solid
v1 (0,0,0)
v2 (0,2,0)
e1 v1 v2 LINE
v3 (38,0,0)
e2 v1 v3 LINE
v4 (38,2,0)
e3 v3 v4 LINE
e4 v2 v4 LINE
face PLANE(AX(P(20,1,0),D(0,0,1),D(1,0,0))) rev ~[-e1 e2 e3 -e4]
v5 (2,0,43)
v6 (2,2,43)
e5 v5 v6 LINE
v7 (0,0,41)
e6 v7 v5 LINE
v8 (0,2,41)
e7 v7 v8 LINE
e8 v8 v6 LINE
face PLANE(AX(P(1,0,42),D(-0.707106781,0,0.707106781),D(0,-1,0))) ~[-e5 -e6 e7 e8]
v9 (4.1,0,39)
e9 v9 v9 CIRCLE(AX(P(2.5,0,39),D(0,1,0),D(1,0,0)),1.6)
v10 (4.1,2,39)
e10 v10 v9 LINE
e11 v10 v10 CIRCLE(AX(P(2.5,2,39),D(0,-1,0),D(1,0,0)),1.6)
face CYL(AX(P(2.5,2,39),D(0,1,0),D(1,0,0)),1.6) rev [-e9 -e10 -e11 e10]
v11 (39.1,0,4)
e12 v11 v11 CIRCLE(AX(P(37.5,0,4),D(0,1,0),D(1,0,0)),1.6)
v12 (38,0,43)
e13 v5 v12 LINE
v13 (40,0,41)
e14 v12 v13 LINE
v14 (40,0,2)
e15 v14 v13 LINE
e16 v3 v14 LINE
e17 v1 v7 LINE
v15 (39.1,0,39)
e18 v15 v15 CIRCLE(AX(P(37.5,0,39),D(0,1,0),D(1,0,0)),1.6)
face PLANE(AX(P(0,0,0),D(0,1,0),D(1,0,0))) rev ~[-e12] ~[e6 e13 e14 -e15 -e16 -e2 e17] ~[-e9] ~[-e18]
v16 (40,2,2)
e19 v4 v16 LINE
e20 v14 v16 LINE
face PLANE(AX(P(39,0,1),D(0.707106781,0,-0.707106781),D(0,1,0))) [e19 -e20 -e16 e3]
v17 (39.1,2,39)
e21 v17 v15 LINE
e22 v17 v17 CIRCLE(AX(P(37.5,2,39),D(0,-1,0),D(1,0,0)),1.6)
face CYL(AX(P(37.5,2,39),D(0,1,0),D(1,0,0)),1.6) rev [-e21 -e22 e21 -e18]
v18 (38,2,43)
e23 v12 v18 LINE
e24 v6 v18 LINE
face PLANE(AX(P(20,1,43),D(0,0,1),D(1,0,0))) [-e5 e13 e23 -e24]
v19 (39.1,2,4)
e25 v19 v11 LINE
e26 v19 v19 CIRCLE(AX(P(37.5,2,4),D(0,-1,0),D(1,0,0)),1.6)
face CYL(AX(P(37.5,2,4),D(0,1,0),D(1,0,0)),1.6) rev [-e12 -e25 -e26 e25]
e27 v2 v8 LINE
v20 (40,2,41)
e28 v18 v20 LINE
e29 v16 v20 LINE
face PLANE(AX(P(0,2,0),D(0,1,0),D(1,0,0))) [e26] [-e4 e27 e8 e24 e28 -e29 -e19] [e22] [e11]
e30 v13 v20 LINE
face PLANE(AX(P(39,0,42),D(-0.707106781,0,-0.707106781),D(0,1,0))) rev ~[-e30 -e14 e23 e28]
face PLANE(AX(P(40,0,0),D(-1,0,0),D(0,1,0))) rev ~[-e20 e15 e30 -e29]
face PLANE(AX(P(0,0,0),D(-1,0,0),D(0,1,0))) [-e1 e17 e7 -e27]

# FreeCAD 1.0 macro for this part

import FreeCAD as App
import Part
import Sketcher
from FreeCAD import Vector
Q = App.Units.Quantity


def edges_at(feature, points):
    """Names of the edges that pass closest to the given points."""
    edges = feature.Shape.Edges
    near = lambda p: min(range(len(edges)), key=lambda i: edges[i].distToShape(Part.Vertex(*p))[0])
    return sorted({f"Edge{near(p) + 1}" for p in points})

doc = App.newDocument("Part")
body = doc.addObject("PartDesign::Body", "Body")

# Sketch on XZ plane
sketch1 = body.newObject("Sketcher::SketchObject", "Sketch")
sketch1.AttachmentSupport = (doc.getObject("XZ_Plane"), [""])
sketch1.MapMode = "FlatFace"
sketch1.AttachmentOffset = App.Placement(Vector(0, 0, -2), App.Rotation())
sketch1.addGeometry(Part.Circle(Vector(37.5, 39, 0), Vector(0, 0, 1), 1.6), False)
sketch1.addConstraint(Sketcher.Constraint("Diameter", 0, Q("3.2 mm")))
sketch1.addConstraint(Sketcher.Constraint("DistanceY", -1, 1, 0, 3, Q("39 mm")))
sketch1.addConstraint(Sketcher.Constraint("DistanceX", -1, 1, 0, 3, Q("37.5 mm")))
pad1 = body.newObject("PartDesign::Pad", "Pad")
pad1.Profile = sketch1
pad1.Length = 10
body2 = doc.addObject("PartDesign::Body", "Body001")

# Sketch on XZ plane
sketch2 = body2.newObject("Sketcher::SketchObject", "Sketch001")
sketch2.AttachmentSupport = (doc.getObject("XZ_Plane001"), [""])
sketch2.MapMode = "FlatFace"
sketch2.AttachmentOffset = App.Placement(Vector(0, 0, -2), App.Rotation())
sketch2.addGeometry(Part.Circle(Vector(37.5, 4, 0), Vector(0, 0, 1), 1.6), False)
sketch2.addConstraint(Sketcher.Constraint("Diameter", 0, Q("3.2 mm")))
sketch2.addConstraint(Sketcher.Constraint("DistanceY", -1, 1, 0, 3, Q("4 mm")))
sketch2.addConstraint(Sketcher.Constraint("DistanceX", -1, 1, 0, 3, Q("37.5 mm")))
pad2 = body2.newObject("PartDesign::Pad", "Pad001")
pad2.Profile = sketch2
pad2.Length = 10
body3 = doc.addObject("PartDesign::Body", "Body002")
body3.AllowCompound = True

# Sketch on XZ plane
sketch3 = body3.newObject("Sketcher::SketchObject", "Sketch002")
sketch3.AttachmentSupport = (doc.getObject("XZ_Plane002"), [""])
sketch3.MapMode = "FlatFace"
sketch3.AttachmentOffset = App.Placement(Vector(0, 0, -2), App.Rotation())
sketch3.addGeometry(Part.Circle(Vector(2.5, 39, 0), Vector(0, 0, 1), 1.6), False)
sketch3.addConstraint(Sketcher.Constraint("Diameter", 0, Q("3.2 mm")))
sketch3.addConstraint(Sketcher.Constraint("DistanceY", -1, 1, 0, 3, Q("39 mm")))
sketch3.addConstraint(Sketcher.Constraint("DistanceX", -1, 1, 0, 3, Q("2.5 mm")))
pad3 = body3.newObject("PartDesign::Pad", "Pad002")
pad3.Profile = sketch3
pad3.Length = 10
doc.recompute()

boolean = body3.newObject("PartDesign::Boolean", "Boolean")
boolean.Type = "Fuse"
boolean.addObjects([body])
doc.recompute()

boolean2 = body3.newObject("PartDesign::Boolean", "Boolean001")
boolean2.Type = "Fuse"
boolean2.addObjects([body2])
body4 = doc.addObject("PartDesign::Body", "Body003")

# Sketch on XY plane
sketch4 = body4.newObject("Sketcher::SketchObject", "Sketch003")
sketch4.AttachmentSupport = (doc.getObject("XY_Plane003"), [""])
sketch4.MapMode = "FlatFace"
sketch4.addGeometry(Part.LineSegment(Vector(0, 2, 0), Vector(0, 0, 0)), False)
sketch4.addGeometry(Part.LineSegment(Vector(0, 0, 0), Vector(40, 0, 0)), False)
sketch4.addGeometry(Part.LineSegment(Vector(40, 0, 0), Vector(40, 2, 0)), False)
sketch4.addGeometry(Part.LineSegment(Vector(40, 2, 0), Vector(0, 2, 0)), False)
sketch4.addConstraint(Sketcher.Constraint("Coincident", 0, 2, 1, 1))
sketch4.addConstraint(Sketcher.Constraint("Coincident", 1, 2, 2, 1))
sketch4.addConstraint(Sketcher.Constraint("Coincident", 2, 2, 3, 1))
sketch4.addConstraint(Sketcher.Constraint("Coincident", 3, 2, 0, 1))
sketch4.addConstraint(Sketcher.Constraint("Vertical", 0))
sketch4.addConstraint(Sketcher.Constraint("Horizontal", 1))
sketch4.addConstraint(Sketcher.Constraint("Vertical", 2))
sketch4.addConstraint(Sketcher.Constraint("Horizontal", 3))
sketch4.addConstraint(Sketcher.Constraint("Coincident", 0, 2, -1, 1))
sketch4.addConstraint(Sketcher.Constraint("DistanceX", 1, 1, 1, 2, Q("40 mm")))
sketch4.addConstraint(Sketcher.Constraint("DistanceY", 0, 2, 0, 1, Q("2 mm")))
pad4 = body4.newObject("PartDesign::Pad", "Pad003")
pad4.Profile = sketch4
pad4.Length = 43
doc.recompute()

boolean3 = body4.newObject("PartDesign::Boolean", "Boolean002")
boolean3.Type = "Cut"
boolean3.addObjects([body3])
doc.recompute()

chamfer = body4.newObject("PartDesign::Chamfer", "Chamfer")
chamfer.Base = (boolean3, edges_at(boolean3, [(0, 1, 43), (40, 1, 43), (40, 1, 0)]))
chamfer.Size = 2

doc.recompute()
